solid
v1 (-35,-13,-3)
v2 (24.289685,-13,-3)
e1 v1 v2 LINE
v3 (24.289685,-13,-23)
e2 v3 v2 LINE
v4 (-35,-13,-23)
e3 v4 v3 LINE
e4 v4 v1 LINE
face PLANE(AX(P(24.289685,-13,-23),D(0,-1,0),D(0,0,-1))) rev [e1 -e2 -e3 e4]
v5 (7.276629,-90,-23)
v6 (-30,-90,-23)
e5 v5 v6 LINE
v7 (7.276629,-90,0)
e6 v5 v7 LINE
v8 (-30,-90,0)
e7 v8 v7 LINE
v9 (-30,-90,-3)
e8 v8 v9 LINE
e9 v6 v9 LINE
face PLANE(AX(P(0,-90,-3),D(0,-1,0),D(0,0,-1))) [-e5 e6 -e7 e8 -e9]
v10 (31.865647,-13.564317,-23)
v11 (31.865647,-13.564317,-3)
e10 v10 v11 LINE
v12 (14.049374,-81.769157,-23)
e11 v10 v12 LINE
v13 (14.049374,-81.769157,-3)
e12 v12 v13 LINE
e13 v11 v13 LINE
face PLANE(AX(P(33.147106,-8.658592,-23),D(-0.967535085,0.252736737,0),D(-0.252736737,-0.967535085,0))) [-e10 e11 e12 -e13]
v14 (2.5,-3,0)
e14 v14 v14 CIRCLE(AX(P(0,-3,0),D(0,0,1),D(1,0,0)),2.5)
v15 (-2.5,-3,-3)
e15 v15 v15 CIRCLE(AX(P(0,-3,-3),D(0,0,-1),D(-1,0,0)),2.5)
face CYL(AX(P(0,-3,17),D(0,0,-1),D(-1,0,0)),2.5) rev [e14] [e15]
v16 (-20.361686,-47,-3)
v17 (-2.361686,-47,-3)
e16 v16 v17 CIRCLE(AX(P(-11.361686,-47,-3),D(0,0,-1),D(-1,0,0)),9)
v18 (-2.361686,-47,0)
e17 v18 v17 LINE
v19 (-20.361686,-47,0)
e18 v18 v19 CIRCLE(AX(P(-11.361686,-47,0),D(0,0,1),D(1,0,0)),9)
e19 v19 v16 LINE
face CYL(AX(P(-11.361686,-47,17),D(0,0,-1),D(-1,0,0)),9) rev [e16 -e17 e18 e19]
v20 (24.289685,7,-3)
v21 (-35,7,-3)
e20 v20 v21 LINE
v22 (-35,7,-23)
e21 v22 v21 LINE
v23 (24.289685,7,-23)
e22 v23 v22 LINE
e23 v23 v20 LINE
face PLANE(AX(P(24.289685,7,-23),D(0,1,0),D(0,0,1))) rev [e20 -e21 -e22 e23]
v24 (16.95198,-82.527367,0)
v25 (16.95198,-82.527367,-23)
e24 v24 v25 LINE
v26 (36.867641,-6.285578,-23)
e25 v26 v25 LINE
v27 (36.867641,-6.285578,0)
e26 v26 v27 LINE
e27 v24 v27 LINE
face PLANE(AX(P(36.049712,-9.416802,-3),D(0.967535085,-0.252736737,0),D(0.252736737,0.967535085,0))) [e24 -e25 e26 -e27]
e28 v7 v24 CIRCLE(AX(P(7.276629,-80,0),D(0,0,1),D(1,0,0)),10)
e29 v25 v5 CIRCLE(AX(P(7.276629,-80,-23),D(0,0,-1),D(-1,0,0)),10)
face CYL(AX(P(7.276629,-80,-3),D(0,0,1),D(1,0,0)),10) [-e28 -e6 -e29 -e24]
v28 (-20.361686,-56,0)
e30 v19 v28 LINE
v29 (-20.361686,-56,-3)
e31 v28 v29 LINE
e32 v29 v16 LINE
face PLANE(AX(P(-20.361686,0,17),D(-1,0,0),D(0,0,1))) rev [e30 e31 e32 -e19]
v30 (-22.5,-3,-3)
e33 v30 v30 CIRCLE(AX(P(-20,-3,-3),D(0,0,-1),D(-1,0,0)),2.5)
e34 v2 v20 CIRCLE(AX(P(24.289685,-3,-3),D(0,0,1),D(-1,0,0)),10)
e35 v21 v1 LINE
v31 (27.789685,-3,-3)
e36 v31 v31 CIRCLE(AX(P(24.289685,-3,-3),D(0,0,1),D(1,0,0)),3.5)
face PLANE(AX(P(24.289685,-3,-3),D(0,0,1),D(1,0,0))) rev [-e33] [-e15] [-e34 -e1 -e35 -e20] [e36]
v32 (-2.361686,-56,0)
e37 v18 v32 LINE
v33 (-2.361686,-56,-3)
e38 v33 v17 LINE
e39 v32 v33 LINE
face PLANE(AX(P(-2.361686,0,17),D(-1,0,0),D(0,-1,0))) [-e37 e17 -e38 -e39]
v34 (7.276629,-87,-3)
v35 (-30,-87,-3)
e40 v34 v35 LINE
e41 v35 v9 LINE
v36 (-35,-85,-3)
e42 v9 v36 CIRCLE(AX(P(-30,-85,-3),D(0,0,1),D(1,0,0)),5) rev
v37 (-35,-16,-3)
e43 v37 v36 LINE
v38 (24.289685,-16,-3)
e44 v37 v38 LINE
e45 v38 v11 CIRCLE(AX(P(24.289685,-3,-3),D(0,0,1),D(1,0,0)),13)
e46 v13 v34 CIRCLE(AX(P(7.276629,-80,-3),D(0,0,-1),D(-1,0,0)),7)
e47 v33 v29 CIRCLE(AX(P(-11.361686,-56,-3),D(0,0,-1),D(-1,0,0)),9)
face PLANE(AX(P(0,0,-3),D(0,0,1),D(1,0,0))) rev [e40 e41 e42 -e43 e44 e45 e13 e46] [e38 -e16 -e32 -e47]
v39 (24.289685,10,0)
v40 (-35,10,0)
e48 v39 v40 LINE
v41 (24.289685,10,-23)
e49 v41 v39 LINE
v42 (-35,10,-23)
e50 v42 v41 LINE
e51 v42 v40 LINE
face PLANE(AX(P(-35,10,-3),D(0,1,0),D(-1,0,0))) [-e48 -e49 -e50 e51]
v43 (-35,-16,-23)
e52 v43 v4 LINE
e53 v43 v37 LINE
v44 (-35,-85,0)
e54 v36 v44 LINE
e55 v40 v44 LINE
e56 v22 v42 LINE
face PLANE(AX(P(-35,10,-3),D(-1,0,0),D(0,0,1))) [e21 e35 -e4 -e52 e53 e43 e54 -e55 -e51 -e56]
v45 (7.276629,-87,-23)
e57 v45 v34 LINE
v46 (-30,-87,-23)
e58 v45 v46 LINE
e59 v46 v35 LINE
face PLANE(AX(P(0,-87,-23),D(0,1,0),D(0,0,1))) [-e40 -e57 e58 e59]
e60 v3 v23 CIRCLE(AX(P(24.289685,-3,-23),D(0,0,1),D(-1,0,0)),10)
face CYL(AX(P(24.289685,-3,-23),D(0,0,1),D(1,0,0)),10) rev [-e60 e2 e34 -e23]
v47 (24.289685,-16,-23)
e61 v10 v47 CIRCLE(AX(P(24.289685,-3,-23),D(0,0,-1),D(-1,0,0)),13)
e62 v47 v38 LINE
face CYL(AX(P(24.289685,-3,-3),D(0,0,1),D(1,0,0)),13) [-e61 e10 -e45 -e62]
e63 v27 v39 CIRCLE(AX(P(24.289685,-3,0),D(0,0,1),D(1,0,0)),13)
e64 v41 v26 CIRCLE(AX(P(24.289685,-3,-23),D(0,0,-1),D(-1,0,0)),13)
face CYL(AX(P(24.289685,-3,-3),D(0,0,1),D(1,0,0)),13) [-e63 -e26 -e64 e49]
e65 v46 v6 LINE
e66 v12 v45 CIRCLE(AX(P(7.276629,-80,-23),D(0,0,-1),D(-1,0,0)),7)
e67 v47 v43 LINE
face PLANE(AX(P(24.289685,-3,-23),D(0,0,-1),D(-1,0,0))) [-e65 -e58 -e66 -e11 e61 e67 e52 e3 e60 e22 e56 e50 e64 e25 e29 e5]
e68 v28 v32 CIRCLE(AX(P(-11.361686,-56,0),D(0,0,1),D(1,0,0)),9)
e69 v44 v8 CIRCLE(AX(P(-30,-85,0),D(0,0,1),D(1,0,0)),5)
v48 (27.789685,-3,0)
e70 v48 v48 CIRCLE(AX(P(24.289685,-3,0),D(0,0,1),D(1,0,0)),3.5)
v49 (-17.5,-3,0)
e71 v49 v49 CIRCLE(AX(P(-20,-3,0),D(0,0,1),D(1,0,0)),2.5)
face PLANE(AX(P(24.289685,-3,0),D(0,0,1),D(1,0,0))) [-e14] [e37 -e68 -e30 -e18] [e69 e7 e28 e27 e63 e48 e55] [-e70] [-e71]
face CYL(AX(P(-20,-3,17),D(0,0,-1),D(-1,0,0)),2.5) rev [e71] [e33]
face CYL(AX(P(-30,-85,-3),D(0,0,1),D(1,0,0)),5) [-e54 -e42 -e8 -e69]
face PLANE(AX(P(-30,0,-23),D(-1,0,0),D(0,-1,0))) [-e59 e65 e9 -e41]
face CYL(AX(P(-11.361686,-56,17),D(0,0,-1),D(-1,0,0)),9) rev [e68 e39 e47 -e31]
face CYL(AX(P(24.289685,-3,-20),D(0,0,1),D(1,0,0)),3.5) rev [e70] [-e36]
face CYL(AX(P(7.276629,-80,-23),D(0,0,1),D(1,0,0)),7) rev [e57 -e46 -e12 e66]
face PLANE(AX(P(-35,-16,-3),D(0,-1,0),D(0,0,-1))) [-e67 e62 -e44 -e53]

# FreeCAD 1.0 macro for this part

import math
import FreeCAD as App
import Part
import Sketcher
Q = App.Units.Quantity


def edges_at(feature, points):
    """Names of the edges that pass closest to the given points."""
    edges = feature.Shape.Edges
    near = lambda p: min(range(len(edges)), key=lambda i: edges[i].distToShape(Part.Vertex(*p))[0])
    return sorted({f"Edge{near(p) + 1}" for p in points})

doc = App.newDocument("Part")
body = doc.addObject("PartDesign::Body", "Body")

# Sketch on XY plane
sketch1 = doc.addObject("Sketcher::SketchObject", "Sketch")
body.addObject(sketch1)
sketch1.AttachmentSupport = (doc.XY_Plane, [""])
sketch1.MapMode = "FlatFace"
sketch1.addGeometry(Part.LineSegment(App.Vector(24.289685, 10, 0), App.Vector(-35, 10, 0)), False)
sketch1.addGeometry(Part.LineSegment(App.Vector(-35, 10, 0), App.Vector(-35, -16, 0)), False)
sketch1.addGeometry(Part.LineSegment(App.Vector(-35, -16, 0), App.Vector(24.289685, -16, 0)), False)
sketch1.addGeometry(Part.ArcOfCircle(Part.Circle(App.Vector(24.289685, -3, 0), App.Vector(0, 0, 1), 13), math.radians(-90), math.radians(90)), False)
sketch1.addConstraint(Sketcher.Constraint("Coincident", 0, 2, 1, 1))
sketch1.addConstraint(Sketcher.Constraint("Coincident", 1, 2, 2, 1))
sketch1.addConstraint(Sketcher.Constraint("Tangent", 2, 2, 3, 1))
sketch1.addConstraint(Sketcher.Constraint("Tangent", 3, 2, 0, 1))
sketch1.addConstraint(Sketcher.Constraint("Horizontal", 0))
sketch1.addConstraint(Sketcher.Constraint("Vertical", 1))
sketch1.addConstraint(Sketcher.Constraint("Horizontal", 2))
sketch1.addConstraint(Sketcher.Constraint("Radius", 3, Q("13 mm")))
sketch1.addConstraint(Sketcher.Constraint("DistanceY", 3, 3, -1, 1, Q("3 mm")))
sketch1.addConstraint(Sketcher.Constraint("DistanceX", 0, 2, -1, 1, Q("35 mm")))
sketch1.addConstraint(Sketcher.Constraint("DistanceX", 0, 2, 0, 1, Q("59.289685 mm")))
pad1 = doc.addObject("PartDesign::Pad", "Pad")
body.addObject(pad1)
pad1.Profile = sketch1
pad1.Length = 3
pad1.Reversed = True

# Sketch on XY plane
sketch2 = doc.addObject("Sketcher::SketchObject", "Sketch001")
body.addObject(sketch2)
sketch2.AttachmentSupport = (doc.XY_Plane, [""])
sketch2.MapMode = "FlatFace"
sketch2.AttachmentOffset = App.Placement(App.Vector(0, 0, -3), App.Rotation())
sketch2.addGeometry(Part.LineSegment(App.Vector(24.289685, 7, 0), App.Vector(-35, 7, 0)), False)
sketch2.addGeometry(Part.LineSegment(App.Vector(-35, 7, 0), App.Vector(-35, 10, 0)), False)
sketch2.addGeometry(Part.LineSegment(App.Vector(-35, 10, 0), App.Vector(24.289685, 10, 0)), False)
sketch2.addGeometry(Part.ArcOfCircle(Part.Circle(App.Vector(24.289685, -3, 0), App.Vector(0, 0, 1), 13), math.radians(-90), math.radians(90)), False)
sketch2.addGeometry(Part.LineSegment(App.Vector(24.289685, -16, 0), App.Vector(-35, -16, 0)), False)
sketch2.addGeometry(Part.LineSegment(App.Vector(-35, -16, 0), App.Vector(-35, -13, 0)), False)
sketch2.addGeometry(Part.LineSegment(App.Vector(-35, -13, 0), App.Vector(24.289685, -13, 0)), False)
sketch2.addGeometry(Part.ArcOfCircle(Part.Circle(App.Vector(24.289685, -3, 0), App.Vector(0, 0, 1), 10), math.radians(-90), math.radians(90)), False)
sketch2.addConstraint(Sketcher.Constraint("Coincident", 0, 2, 1, 1))
sketch2.addConstraint(Sketcher.Constraint("Coincident", 1, 2, 2, 1))
sketch2.addConstraint(Sketcher.Constraint("Tangent", 2, 2, 3, 2))
sketch2.addConstraint(Sketcher.Constraint("Tangent", 3, 1, 4, 1))
sketch2.addConstraint(Sketcher.Constraint("Coincident", 4, 2, 5, 1))
sketch2.addConstraint(Sketcher.Constraint("Coincident", 5, 2, 6, 1))
sketch2.addConstraint(Sketcher.Constraint("Tangent", 6, 2, 7, 1))
sketch2.addConstraint(Sketcher.Constraint("Tangent", 7, 2, 0, 1))
sketch2.addConstraint(Sketcher.Constraint("Horizontal", 0))
sketch2.addConstraint(Sketcher.Constraint("Vertical", 1))
sketch2.addConstraint(Sketcher.Constraint("Horizontal", 2))
sketch2.addConstraint(Sketcher.Constraint("Horizontal", 4))
sketch2.addConstraint(Sketcher.Constraint("Vertical", 5))
sketch2.addConstraint(Sketcher.Constraint("Horizontal", 6))
sketch2.addConstraint(Sketcher.Constraint("Coincident", 7, 3, 3, 3))
sketch2.addConstraint(Sketcher.Constraint("Vertical", 1, 2, 4, 2))
sketch2.addConstraint(Sketcher.Constraint("Radius", 3, Q("13 mm")))
sketch2.addConstraint(Sketcher.Constraint("Radius", 7, Q("10 mm")))
sketch2.addConstraint(Sketcher.Constraint("DistanceY", 3, 3, -1, 1, Q("3 mm")))
sketch2.addConstraint(Sketcher.Constraint("DistanceX", 0, 2, -1, 1, Q("35 mm")))
sketch2.addConstraint(Sketcher.Constraint("DistanceX", 0, 2, 0, 1, Q("59.289685 mm")))
pad2 = doc.addObject("PartDesign::Pad", "Pad001")
body.addObject(pad2)
pad2.Profile = sketch2
pad2.Length = 20
pad2.Reversed = True

# Sketch on XY plane
sketch3 = doc.addObject("Sketcher::SketchObject", "Sketch002")
body.addObject(sketch3)
sketch3.AttachmentSupport = (doc.XY_Plane, [""])
sketch3.MapMode = "FlatFace"
sketch3.addGeometry(Part.Circle(App.Vector(24.289685, -3, 0), App.Vector(0, 0, 1), 3.5), False)
sketch3.addConstraint(Sketcher.Constraint("Diameter", 0, Q("7 mm")))
sketch3.addConstraint(Sketcher.Constraint("DistanceY", 0, 3, -1, 1, Q("3 mm")))
sketch3.addConstraint(Sketcher.Constraint("DistanceX", -1, 1, 0, 3, Q("24.289685 mm")))
pocket1 = doc.addObject("PartDesign::Pocket", "Pocket")
body.addObject(pocket1)
pocket1.Profile = sketch3
pocket1.Length = 20

# Sketch on XY plane
sketch4 = doc.addObject("Sketcher::SketchObject", "Sketch003")
body.addObject(sketch4)
sketch4.AttachmentSupport = (doc.XY_Plane, [""])
sketch4.MapMode = "FlatFace"
sketch4.addGeometry(Part.LineSegment(App.Vector(24.289685, -16, 0), App.Vector(-35, -16, 0)), False)
sketch4.addGeometry(Part.LineSegment(App.Vector(-35, -16, 0), App.Vector(-35, -90, 0)), False)
sketch4.addGeometry(Part.LineSegment(App.Vector(-35, -90, 0), App.Vector(15, -90, 0)), False)
sketch4.addGeometry(Part.LineSegment(App.Vector(15, -90, 0), App.Vector(36.867641, -6.285578, 0)), False)
sketch4.addGeometry(Part.ArcOfCircle(Part.Circle(App.Vector(24.289685, -3, 0), App.Vector(0, 0, 1), 13), math.radians(-90), math.radians(-14.639517)), False)
sketch4.addConstraint(Sketcher.Constraint("Coincident", 0, 2, 1, 1))
sketch4.addConstraint(Sketcher.Constraint("Coincident", 1, 2, 2, 1))
sketch4.addConstraint(Sketcher.Constraint("Coincident", 2, 2, 3, 1))
sketch4.addConstraint(Sketcher.Constraint("Tangent", 3, 2, 4, 2))
sketch4.addConstraint(Sketcher.Constraint("Tangent", 4, 1, 0, 1))
sketch4.addConstraint(Sketcher.Constraint("Horizontal", 0))
sketch4.addConstraint(Sketcher.Constraint("Vertical", 1))
sketch4.addConstraint(Sketcher.Constraint("Horizontal", 2))
sketch4.addConstraint(Sketcher.Constraint("Radius", 4, Q("13 mm")))
sketch4.addConstraint(Sketcher.Constraint("DistanceX", 2, 1, 2, 2, Q("50 mm")))
sketch4.addConstraint(Sketcher.Constraint("DistanceY", 1, 2, 1, 1, Q("74 mm")))
sketch4.addConstraint(Sketcher.Constraint("DistanceY", 4, 3, -1, 1, Q("3 mm")))
sketch4.addConstraint(Sketcher.Constraint("DistanceX", 0, 2, -1, 1, Q("35 mm")))
sketch4.addConstraint(Sketcher.Constraint("DistanceX", 0, 2, 0, 1, Q("59.289685 mm")))
pad3 = doc.addObject("PartDesign::Pad", "Pad002")
body.addObject(pad3)
pad3.Profile = sketch4
pad3.Length = 3
pad3.Reversed = True
doc.recompute()

fillet = doc.addObject("PartDesign::Fillet", "Fillet")
body.addObject(fillet)
fillet.Base = (pad3, edges_at(pad3, [(15, -90, -1.5)]))
fillet.Radius = 10
doc.recompute()

fillet2 = doc.addObject("PartDesign::Fillet", "Fillet001")
body.addObject(fillet2)
fillet2.Base = (fillet, edges_at(fillet, [(-35, -90, -1.5)]))
fillet2.Radius = 5

# Sketch on XY plane
sketch5 = doc.addObject("Sketcher::SketchObject", "Sketch004")
body.addObject(sketch5)
sketch5.AttachmentSupport = (doc.XY_Plane, [""])
sketch5.MapMode = "FlatFace"
sketch5.AttachmentOffset = App.Placement(App.Vector(0, 0, -3), App.Rotation())
sketch5.addGeometry(Part.LineSegment(App.Vector(14.049374, -81.769157, 0), App.Vector(31.865647, -13.564317, 0)), False)
sketch5.addGeometry(Part.ArcOfCircle(Part.Circle(App.Vector(24.289685, -3, 0), App.Vector(0, 0, 1), 13), math.radians(-54.354655), math.radians(-14.639517)), False)
sketch5.addGeometry(Part.LineSegment(App.Vector(36.867641, -6.285578, 0), App.Vector(16.95198, -82.527367, 0)), False)
sketch5.addGeometry(Part.ArcOfCircle(Part.Circle(App.Vector(7.276629, -80, 0), App.Vector(0, 0, 1), 10), math.radians(-90), math.radians(-14.639517)), False)
sketch5.addGeometry(Part.LineSegment(App.Vector(7.276629, -90, 0), App.Vector(-30, -90, 0)), False)
sketch5.addGeometry(Part.LineSegment(App.Vector(-30, -90, 0), App.Vector(-30, -87, 0)), False)
sketch5.addGeometry(Part.LineSegment(App.Vector(-30, -87, 0), App.Vector(7.276629, -87, 0)), False)
sketch5.addGeometry(Part.ArcOfCircle(Part.Circle(App.Vector(7.276629, -80, 0), App.Vector(0, 0, 1), 7), math.radians(-90), math.radians(-14.639518)), False)
sketch5.addConstraint(Sketcher.Constraint("Coincident", 0, 2, 1, 1))
sketch5.addConstraint(Sketcher.Constraint("Tangent", 1, 2, 2, 1))
sketch5.addConstraint(Sketcher.Constraint("Tangent", 2, 2, 3, 2))
sketch5.addConstraint(Sketcher.Constraint("Tangent", 3, 1, 4, 1))
sketch5.addConstraint(Sketcher.Constraint("Coincident", 4, 2, 5, 1))
sketch5.addConstraint(Sketcher.Constraint("Coincident", 5, 2, 6, 1))
sketch5.addConstraint(Sketcher.Constraint("Tangent", 6, 2, 7, 1))
sketch5.addConstraint(Sketcher.Constraint("Tangent", 7, 2, 0, 1))
sketch5.addConstraint(Sketcher.Constraint("Horizontal", 4))
sketch5.addConstraint(Sketcher.Constraint("Vertical", 5))
sketch5.addConstraint(Sketcher.Constraint("Horizontal", 6))
sketch5.addConstraint(Sketcher.Constraint("Coincident", 7, 3, 3, 3))
sketch5.addConstraint(Sketcher.Constraint("Parallel", 0, 2))
sketch5.addConstraint(Sketcher.Constraint("Radius", 1, Q("13 mm")))
sketch5.addConstraint(Sketcher.Constraint("Radius", 3, Q("10 mm")))
sketch5.addConstraint(Sketcher.Constraint("Radius", 7, Q("7 mm")))
sketch5.addConstraint(Sketcher.Constraint("DistanceY", 1, 3, -1, 1, Q("3 mm")))
sketch5.addConstraint(Sketcher.Constraint("DistanceY", 3, 3, -1, 1, Q("80 mm")))
sketch5.addConstraint(Sketcher.Constraint("DistanceX", 4, 2, -1, 1, Q("30 mm")))
sketch5.addConstraint(Sketcher.Constraint("DistanceX", 4, 2, 4, 1, Q("37.276629 mm")))
sketch5.addConstraint(Sketcher.Constraint("DistanceX", -1, 1, 1, 2, Q("36.867641 mm")))
pad4 = doc.addObject("PartDesign::Pad", "Pad003")
body.addObject(pad4)
pad4.Profile = sketch5
pad4.Length = 20
pad4.Reversed = True

# Sketch on XY plane
sketch6 = doc.addObject("Sketcher::SketchObject", "Sketch005")
body.addObject(sketch6)
sketch6.AttachmentSupport = (doc.XY_Plane, [""])
sketch6.MapMode = "FlatFace"
sketch6.AttachmentOffset = App.Placement(App.Vector(0, 0, -3), App.Rotation())
sketch6.addGeometry(Part.Circle(App.Vector(0, -3, 0), App.Vector(0, 0, 1), 2.5), False)
sketch6.addGeometry(Part.Circle(App.Vector(-20, -3, 0), App.Vector(0, 0, 1), 2.5), False)
sketch6.addConstraint(Sketcher.Constraint("Equal", 0, 1))
sketch6.addConstraint(Sketcher.Constraint("PointOnObject", 0, 3, -2))
sketch6.addConstraint(Sketcher.Constraint("Horizontal", 0, 3, 1, 3))
sketch6.addConstraint(Sketcher.Constraint("Diameter", 0, Q("5 mm")))
sketch6.addConstraint(Sketcher.Constraint("DistanceY", 0, 3, -1, 1, Q("3 mm")))
sketch6.addConstraint(Sketcher.Constraint("DistanceX", 1, 3, -1, 1, Q("20 mm")))
pocket2 = doc.addObject("PartDesign::Pocket", "Pocket001")
body.addObject(pocket2)
pocket2.Profile = sketch6
pocket2.Length = 20
pocket2.Reversed = True

# Sketch on XY plane
sketch7 = doc.addObject("Sketcher::SketchObject", "Sketch006")
body.addObject(sketch7)
sketch7.AttachmentSupport = (doc.XY_Plane, [""])
sketch7.MapMode = "FlatFace"
sketch7.AttachmentOffset = App.Placement(App.Vector(0, 0, -3), App.Rotation())
sketch7.addGeometry(Part.LineSegment(App.Vector(-20.361686, -56, 0), App.Vector(-20.361686, -47, 0)), False)
sketch7.addGeometry(Part.ArcOfCircle(Part.Circle(App.Vector(-11.361686, -47, 0), App.Vector(0, 0, 1), 9), math.radians(0), math.radians(180)), False)
sketch7.addGeometry(Part.LineSegment(App.Vector(-2.361686, -47, 0), App.Vector(-2.361686, -56, 0)), False)
sketch7.addGeometry(Part.ArcOfCircle(Part.Circle(App.Vector(-11.361686, -56, 0), App.Vector(0, 0, 1), 9), math.radians(180), math.radians(360)), False)
sketch7.addConstraint(Sketcher.Constraint("Tangent", 0, 2, 1, 2))
sketch7.addConstraint(Sketcher.Constraint("Tangent", 1, 1, 2, 1))
sketch7.addConstraint(Sketcher.Constraint("Tangent", 2, 2, 3, 2))
sketch7.addConstraint(Sketcher.Constraint("Tangent", 3, 1, 0, 1))
sketch7.addConstraint(Sketcher.Constraint("Vertical", 0))
sketch7.addConstraint(Sketcher.Constraint("Vertical", 2))
sketch7.addConstraint(Sketcher.Constraint("Radius", 1, Q("9 mm")))
sketch7.addConstraint(Sketcher.Constraint("DistanceY", 0, 1, 0, 2, Q("9 mm")))
sketch7.addConstraint(Sketcher.Constraint("DistanceY", 1, 3, -1, 1, Q("47 mm")))
sketch7.addConstraint(Sketcher.Constraint("DistanceX", 1, 3, -1, 1, Q("11.361686 mm")))
pocket3 = doc.addObject("PartDesign::Pocket", "Pocket002")
body.addObject(pocket3)
pocket3.Profile = sketch7
pocket3.Length = 20
pocket3.Reversed = True

doc.recompute()
